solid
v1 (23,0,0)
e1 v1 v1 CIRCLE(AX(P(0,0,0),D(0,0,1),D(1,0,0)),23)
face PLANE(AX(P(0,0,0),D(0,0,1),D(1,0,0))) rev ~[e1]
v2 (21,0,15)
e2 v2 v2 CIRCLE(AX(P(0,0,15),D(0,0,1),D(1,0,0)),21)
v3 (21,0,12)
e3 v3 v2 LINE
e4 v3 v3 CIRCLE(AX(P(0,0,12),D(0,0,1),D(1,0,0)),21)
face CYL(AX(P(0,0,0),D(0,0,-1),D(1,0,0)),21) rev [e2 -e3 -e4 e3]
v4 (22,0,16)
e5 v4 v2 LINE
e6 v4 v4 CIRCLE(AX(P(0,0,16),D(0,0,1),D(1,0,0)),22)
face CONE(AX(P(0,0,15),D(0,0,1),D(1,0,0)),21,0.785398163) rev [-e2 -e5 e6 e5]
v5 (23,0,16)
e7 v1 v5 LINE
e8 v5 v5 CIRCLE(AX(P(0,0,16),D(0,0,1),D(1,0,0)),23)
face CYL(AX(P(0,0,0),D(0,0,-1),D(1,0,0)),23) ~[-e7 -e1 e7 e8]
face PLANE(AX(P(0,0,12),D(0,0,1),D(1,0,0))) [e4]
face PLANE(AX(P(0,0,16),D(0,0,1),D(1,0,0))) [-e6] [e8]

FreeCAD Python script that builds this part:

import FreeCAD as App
import Part
import Sketcher

V = App.Vector
Q = App.Units.Quantity


def edges_at(feature, points):
    """Names of the edges that pass closest to the given points."""
    edges = feature.Shape.Edges
    near = lambda p: min(range(len(edges)), key=lambda i: edges[i].distToShape(Part.Vertex(*p))[0])
    return sorted({f"Edge{near(p) + 1}" for p in points})

doc = App.newDocument("Part")
body = doc.addObject("PartDesign::Body", "Body")

sketch1 = doc.addObject("Sketcher::SketchObject", "Sketch")
body.addObject(sketch1)
sketch1.AttachmentSupport = (doc.XY_Plane, [""])
sketch1.MapMode = "FlatFace"
sketch1.addGeometry(Part.Circle(V(0, 0, 0), V(0, 0, 1), 21), False)
sketch1.addConstraint([
    Sketcher.Constraint("Coincident", 0, 3, -1, 1),
    Sketcher.Constraint("Diameter", 0, Q("42 mm")),
])
pad1 = doc.addObject("PartDesign::Pad", "Pad")
body.addObject(pad1)
pad1.Profile = sketch1
pad1.Length = 12

sketch2 = doc.addObject("Sketcher::SketchObject", "Sketch001")
body.addObject(sketch2)
sketch2.AttachmentSupport = (doc.XY_Plane, [""])
sketch2.MapMode = "FlatFace"
sketch2.addGeometry([
    Part.Circle(V(0, 0, 0), V(0, 0, 1), 23),
    Part.Circle(V(0, 0, 0), V(0, 0, 1), 21),
], False)
sketch2.addConstraint([
    Sketcher.Constraint("Coincident", 0, 3, -1, 1),
    Sketcher.Constraint("Coincident", 1, 3, -1, 1),
    Sketcher.Constraint("Diameter", 0, Q("46 mm")),
    Sketcher.Constraint("Diameter", 1, Q("42 mm")),
])
pad2 = doc.addObject("PartDesign::Pad", "Pad001")
body.addObject(pad2)
pad2.Profile = sketch2
pad2.Length = 16
doc.recompute()

chamfer = doc.addObject("PartDesign::Chamfer", "Chamfer")
body.addObject(chamfer)
chamfer.Base = (pad2, edges_at(pad2, [(-21, 0, 16)]))
chamfer.Size = 1

doc.recompute()
